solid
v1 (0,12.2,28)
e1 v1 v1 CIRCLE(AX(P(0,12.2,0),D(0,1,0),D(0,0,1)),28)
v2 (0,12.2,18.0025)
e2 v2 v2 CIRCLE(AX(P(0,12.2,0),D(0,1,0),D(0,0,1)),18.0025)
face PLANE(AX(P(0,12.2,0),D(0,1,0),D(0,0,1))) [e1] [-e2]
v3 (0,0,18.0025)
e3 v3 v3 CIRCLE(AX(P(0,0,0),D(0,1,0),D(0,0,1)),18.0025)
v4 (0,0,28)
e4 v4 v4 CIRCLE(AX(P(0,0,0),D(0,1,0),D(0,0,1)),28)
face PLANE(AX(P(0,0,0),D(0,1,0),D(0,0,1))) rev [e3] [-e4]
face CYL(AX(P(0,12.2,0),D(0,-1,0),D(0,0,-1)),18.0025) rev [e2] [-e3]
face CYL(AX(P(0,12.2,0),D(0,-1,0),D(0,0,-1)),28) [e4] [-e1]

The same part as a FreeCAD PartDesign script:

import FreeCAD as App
import Part
import Sketcher

V = App.Vector

doc = App.newDocument("Part")
params = doc.addObject("Spreadsheet::Sheet", "Params")
for row, (alias, value) in enumerate([
    ("sketch1_diameter", "56 mm"),
    ("pad1_length", "12.2 mm"),
], start=1):
    params.set(f"A{row}", alias)
    params.set(f"B{row}", "=" + value)
    params.setAlias(f"B{row}", alias)

body = doc.addObject("PartDesign::Body", "Body")

# Sketch on XZ plane
sketch1 = body.newObject("Sketcher::SketchObject", "Sketch")
sketch1.AttachmentSupport = (doc.getObject("XZ_Plane"), [""])
sketch1.MapMode = "FlatFace"
sketch1.addGeometry(Part.Circle(V(0, 0, 0), V(0, 0, 1), 28), False)
sketch1.addConstraint([
    Sketcher.Constraint("Coincident", 0, 3, -1, 1),
    Sketcher.Constraint("Diameter", 0, 56.0),
])
sketch1.setExpression("Constraints[1]", "Params.sketch1_diameter")
pad1 = body.newObject("PartDesign::Pad", "Pad")
pad1.Profile = sketch1
pad1.setExpression("Length", "Params.pad1_length")
pad1.Reversed = True

# Sketch on XZ plane
sketch2 = body.newObject("Sketcher::SketchObject", "Sketch001")
sketch2.AttachmentSupport = (doc.getObject("XZ_Plane"), [""])
sketch2.MapMode = "FlatFace"
sketch2.addGeometry(Part.Circle(V(0, 0, 0), V(0, 0, 1), 18), False)
sketch2.addConstraint([
    Sketcher.Constraint("Coincident", 0, 3, -1, 1),
    Sketcher.Constraint("Diameter", 0, 36.005),
])
pocket1 = body.newObject("PartDesign::Pocket", "Pocket")
pocket1.Profile = sketch2
pocket1.Type = "ThroughAll"

doc.recompute()
